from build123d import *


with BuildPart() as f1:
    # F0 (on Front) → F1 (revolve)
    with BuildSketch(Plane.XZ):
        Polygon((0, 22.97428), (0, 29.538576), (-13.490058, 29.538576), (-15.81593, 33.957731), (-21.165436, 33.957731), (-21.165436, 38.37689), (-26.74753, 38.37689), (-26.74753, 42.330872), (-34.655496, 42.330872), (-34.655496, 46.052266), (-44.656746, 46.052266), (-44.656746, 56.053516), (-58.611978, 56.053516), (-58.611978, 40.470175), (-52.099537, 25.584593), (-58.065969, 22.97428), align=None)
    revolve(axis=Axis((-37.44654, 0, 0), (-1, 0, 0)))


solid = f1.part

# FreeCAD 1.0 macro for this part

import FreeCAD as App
import Part
import Sketcher

V = App.Vector


def add_polygon(sketch, points):
    """Adds a closed chain of lines whose ends are joined by coincident constraints."""
    first, n = sketch.GeometryCount, len(points)
    for a, b in zip(points, points[1:] + points[:1]):
        sketch.addGeometry(Part.LineSegment(App.Vector(*a, 0), App.Vector(*b, 0)), False)
    for i in range(n):
        sketch.addConstraint(Sketcher.Constraint("Coincident", first + i, 2, first + (i + 1) % n, 1))

doc = App.newDocument("Part")
body = doc.addObject("PartDesign::Body", "Body")

# Sketch on XZ plane
sketch1 = doc.addObject("Sketcher::SketchObject", "Sketch")
body.addObject(sketch1)
sketch1.AttachmentSupport = (doc.XZ_Plane, [""])
sketch1.MapMode = "FlatFace"
add_polygon(sketch1, [(0, 22.97428), (0, 29.538576), (-13.490058, 29.538576), (-15.81593, 33.957731), (-21.165436, 33.957731), (-21.165436, 38.37689), (-26.74753, 38.37689), (-26.74753, 42.330872), (-34.655496, 42.330872), (-34.655496, 46.052266), (-44.656746, 46.052266), (-44.656746, 56.053516), (-58.611978, 56.053516), (-58.611978, 40.470175), (-52.099537, 25.584593), (-58.065969, 22.97428)])  # lines 0-15
sketch1.addConstraint([
    Sketcher.Constraint("Vertical", 0),
    Sketcher.Constraint("Horizontal", 1),
    Sketcher.Constraint("Horizontal", 3),
    Sketcher.Constraint("Vertical", 4),
    Sketcher.Constraint("Horizontal", 5),
    Sketcher.Constraint("Vertical", 6),
    Sketcher.Constraint("Horizontal", 7),
    Sketcher.Constraint("Vertical", 8),
    Sketcher.Constraint("Horizontal", 9),
    Sketcher.Constraint("Vertical", 10),
    Sketcher.Constraint("Horizontal", 11),
    Sketcher.Constraint("Vertical", 12),
    Sketcher.Constraint("Horizontal", 15),
    Sketcher.Constraint("PointOnObject", 0, 2, -2),
    Sketcher.Constraint("Perpendicular", 13, 14),
    Sketcher.Constraint("Equal", 9, 10),
    Sketcher.Constraint("DistanceX", 9, 2, 9, 1, 10.00125),
    Sketcher.Constraint("DistanceX", 15, 1, 15, 2, 58.065969),
    Sketcher.Constraint("DistanceY", 4, 1, 4, 2, 4.419159),
    Sketcher.Constraint("DistanceY", 6, 1, 6, 2, 3.953982),
    Sketcher.Constraint("DistanceY", 12, 2, 12, 1, 15.583341),
    Sketcher.Constraint("DistanceX", 5, 2, 2, 2, 10.9316),
    Sketcher.Constraint("DistanceX", 1, 2, 1, 1, 13.490058),
    Sketcher.Constraint("DistanceX", 3, 2, 3, 1, 5.349506),
    Sketcher.Constraint("DistanceX", 7, 2, 7, 1, 7.907966),
    Sketcher.Constraint("DistanceX", 11, 2, 11, 1, 13.955232),
    Sketcher.Constraint("DistanceY", 0, 1, 0, 2, 6.564296),
    Sketcher.Constraint("DistanceY", 8, 1, 8, 2, 3.721394),
    Sketcher.Constraint("DistanceX", 2, 2, -1, 1, 15.81593),
    Sketcher.Constraint("DistanceY", -1, 1, 2, 2, 33.957731),
    Sketcher.Constraint("DistanceY", -1, 1, 14, 2, 22.97428),
    Sketcher.Constraint("DistanceX", 12, 2, 13, 2, 6.512441),
])
revolution = doc.addObject("PartDesign::Revolution", "Revolution")
body.addObject(revolution)
revolution.Profile = sketch1
revolution.ReferenceAxis = (sketch1, ["H_Axis"])
revolution.Angle = 360

doc.recompute()
